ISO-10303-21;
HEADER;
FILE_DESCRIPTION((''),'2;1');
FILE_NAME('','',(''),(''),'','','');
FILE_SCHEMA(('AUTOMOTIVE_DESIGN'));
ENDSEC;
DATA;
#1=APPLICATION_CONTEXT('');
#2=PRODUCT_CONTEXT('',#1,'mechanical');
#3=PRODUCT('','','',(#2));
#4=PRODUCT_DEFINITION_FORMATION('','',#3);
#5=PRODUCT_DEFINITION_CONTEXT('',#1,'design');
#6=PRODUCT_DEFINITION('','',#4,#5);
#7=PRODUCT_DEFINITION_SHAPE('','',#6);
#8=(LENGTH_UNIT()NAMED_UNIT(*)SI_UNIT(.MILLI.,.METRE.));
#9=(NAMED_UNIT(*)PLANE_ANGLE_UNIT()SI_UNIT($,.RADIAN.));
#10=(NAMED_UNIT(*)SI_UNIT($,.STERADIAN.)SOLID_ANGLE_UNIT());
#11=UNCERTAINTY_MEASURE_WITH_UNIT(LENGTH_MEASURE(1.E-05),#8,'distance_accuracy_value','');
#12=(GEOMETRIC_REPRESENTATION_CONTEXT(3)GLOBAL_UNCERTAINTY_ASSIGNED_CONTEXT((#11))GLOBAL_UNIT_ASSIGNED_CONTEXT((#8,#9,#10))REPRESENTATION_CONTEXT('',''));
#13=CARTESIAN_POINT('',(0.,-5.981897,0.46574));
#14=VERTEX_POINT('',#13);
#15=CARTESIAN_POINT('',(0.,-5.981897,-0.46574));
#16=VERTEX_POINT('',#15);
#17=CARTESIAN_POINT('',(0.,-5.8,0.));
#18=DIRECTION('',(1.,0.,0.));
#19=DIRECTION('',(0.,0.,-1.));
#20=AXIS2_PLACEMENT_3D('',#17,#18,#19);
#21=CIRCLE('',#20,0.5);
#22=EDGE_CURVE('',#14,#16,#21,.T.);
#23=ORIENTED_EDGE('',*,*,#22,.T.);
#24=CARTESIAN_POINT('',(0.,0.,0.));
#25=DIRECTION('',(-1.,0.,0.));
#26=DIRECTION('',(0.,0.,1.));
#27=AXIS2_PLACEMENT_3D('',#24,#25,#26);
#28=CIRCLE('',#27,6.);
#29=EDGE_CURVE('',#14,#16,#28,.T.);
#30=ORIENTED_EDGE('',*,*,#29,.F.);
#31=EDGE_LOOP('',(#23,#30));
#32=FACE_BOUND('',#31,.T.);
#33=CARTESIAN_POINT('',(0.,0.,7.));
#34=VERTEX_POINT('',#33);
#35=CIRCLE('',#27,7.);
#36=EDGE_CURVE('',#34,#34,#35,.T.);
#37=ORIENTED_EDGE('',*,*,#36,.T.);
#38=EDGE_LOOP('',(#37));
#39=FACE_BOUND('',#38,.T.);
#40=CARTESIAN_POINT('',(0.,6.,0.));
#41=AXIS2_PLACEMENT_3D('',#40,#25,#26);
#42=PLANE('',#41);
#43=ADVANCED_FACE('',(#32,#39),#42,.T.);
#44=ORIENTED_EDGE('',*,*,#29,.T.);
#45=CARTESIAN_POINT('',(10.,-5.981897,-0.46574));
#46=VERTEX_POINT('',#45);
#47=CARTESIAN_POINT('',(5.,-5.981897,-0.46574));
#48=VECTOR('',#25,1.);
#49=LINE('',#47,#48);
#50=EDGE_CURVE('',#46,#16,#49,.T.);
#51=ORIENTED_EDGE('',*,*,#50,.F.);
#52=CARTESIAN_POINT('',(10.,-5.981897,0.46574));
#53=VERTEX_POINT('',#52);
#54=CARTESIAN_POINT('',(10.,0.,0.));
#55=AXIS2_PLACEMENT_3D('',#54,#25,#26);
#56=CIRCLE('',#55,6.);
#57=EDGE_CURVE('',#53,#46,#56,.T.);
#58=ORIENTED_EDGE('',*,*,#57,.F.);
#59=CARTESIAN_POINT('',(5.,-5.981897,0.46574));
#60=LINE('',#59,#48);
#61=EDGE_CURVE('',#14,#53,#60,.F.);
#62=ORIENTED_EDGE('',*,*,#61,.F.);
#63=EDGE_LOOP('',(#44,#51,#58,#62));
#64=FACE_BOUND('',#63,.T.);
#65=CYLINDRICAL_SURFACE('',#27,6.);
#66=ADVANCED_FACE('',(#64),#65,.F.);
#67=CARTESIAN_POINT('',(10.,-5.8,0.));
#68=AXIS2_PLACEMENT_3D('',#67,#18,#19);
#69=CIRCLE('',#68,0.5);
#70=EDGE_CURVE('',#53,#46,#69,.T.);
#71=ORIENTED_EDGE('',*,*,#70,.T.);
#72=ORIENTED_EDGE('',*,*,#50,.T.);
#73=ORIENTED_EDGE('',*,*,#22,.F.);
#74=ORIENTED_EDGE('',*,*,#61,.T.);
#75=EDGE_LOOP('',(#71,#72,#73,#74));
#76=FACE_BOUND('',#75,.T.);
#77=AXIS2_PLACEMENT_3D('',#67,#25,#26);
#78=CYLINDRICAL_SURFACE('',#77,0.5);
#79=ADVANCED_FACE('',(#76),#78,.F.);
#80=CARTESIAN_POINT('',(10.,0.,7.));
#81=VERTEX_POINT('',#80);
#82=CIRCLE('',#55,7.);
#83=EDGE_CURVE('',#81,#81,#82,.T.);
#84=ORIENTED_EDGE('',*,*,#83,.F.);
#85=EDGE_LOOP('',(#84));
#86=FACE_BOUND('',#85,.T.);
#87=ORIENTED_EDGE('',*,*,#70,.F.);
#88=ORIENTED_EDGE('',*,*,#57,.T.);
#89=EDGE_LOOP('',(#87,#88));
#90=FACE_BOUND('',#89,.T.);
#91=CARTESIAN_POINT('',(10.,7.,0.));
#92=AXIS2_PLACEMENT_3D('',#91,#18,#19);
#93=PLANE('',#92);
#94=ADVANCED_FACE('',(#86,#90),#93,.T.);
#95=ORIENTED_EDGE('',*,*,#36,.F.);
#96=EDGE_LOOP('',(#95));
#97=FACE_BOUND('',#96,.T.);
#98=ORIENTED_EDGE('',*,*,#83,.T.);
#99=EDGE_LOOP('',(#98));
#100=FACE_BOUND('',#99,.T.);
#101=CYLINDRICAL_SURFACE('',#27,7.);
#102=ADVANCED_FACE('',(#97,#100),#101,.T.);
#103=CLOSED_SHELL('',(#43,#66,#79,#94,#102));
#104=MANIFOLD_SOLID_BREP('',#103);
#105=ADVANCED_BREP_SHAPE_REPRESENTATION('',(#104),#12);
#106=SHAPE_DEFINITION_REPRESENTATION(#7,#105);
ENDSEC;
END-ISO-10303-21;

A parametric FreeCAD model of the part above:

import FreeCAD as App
import Part
import Sketcher

V = App.Vector
Q = App.Units.Quantity


def add_polygon(sketch, points):
    """Adds a closed chain of lines whose ends are joined by coincident constraints."""
    first, n = sketch.GeometryCount, len(points)
    for a, b in zip(points, points[1:] + points[:1]):
        sketch.addGeometry(Part.LineSegment(App.Vector(*a, 0), App.Vector(*b, 0)), False)
    for i in range(n):
        sketch.addConstraint(Sketcher.Constraint("Coincident", first + i, 2, first + (i + 1) % n, 1))

doc = App.newDocument("Part")
body = doc.addObject("PartDesign::Body", "Body")

# Sketch on XY plane
sketch1 = body.newObject("Sketcher::SketchObject", "Sketch")
sketch1.AttachmentSupport = (doc.getObject("XY_Plane"), [""])
sketch1.MapMode = "FlatFace"
add_polygon(sketch1, [(0, 7), (0, 6), (10, 6), (10, 7)])  # lines 0-3
sketch1.addConstraint([
    Sketcher.Constraint("Vertical", 0),
    Sketcher.Constraint("Horizontal", 1),
    Sketcher.Constraint("Vertical", 2),
    Sketcher.Constraint("Horizontal", 3),
    Sketcher.Constraint("PointOnObject", 0, 2, -2),
    Sketcher.Constraint("DistanceX", 1, 1, 1, 2, Q("10 mm")),
    Sketcher.Constraint("DistanceY", 0, 2, 0, 1, Q("1 mm")),
    Sketcher.Constraint("DistanceY", -1, 1, 0, 2, Q("6 mm")),
])
revolution = body.newObject("PartDesign::Revolution", "Revolution")
revolution.Profile = sketch1
revolution.ReferenceAxis = (sketch1, ["H_Axis"])
revolution.Angle = 360

# Sketch on YZ plane
sketch2 = body.newObject("Sketcher::SketchObject", "Sketch001")
sketch2.AttachmentSupport = (doc.getObject("YZ_Plane"), [""])
sketch2.MapMode = "FlatFace"
sketch2.addGeometry(Part.Circle(V(-5.8, 0, 0), V(0, 0, 1), 0.5), False)
sketch2.addConstraint([
    Sketcher.Constraint("PointOnObject", 0, 3, -1),
    Sketcher.Constraint("Diameter", 0, Q("1 mm")),
    Sketcher.Constraint("DistanceX", 0, 3, -1, 1, Q("5.8 mm")),
])
pocket1 = body.newObject("PartDesign::Pocket", "Pocket")
pocket1.Profile = sketch2
pocket1.Type = "ThroughAll"
pocket1.Reversed = True

doc.recompute()
